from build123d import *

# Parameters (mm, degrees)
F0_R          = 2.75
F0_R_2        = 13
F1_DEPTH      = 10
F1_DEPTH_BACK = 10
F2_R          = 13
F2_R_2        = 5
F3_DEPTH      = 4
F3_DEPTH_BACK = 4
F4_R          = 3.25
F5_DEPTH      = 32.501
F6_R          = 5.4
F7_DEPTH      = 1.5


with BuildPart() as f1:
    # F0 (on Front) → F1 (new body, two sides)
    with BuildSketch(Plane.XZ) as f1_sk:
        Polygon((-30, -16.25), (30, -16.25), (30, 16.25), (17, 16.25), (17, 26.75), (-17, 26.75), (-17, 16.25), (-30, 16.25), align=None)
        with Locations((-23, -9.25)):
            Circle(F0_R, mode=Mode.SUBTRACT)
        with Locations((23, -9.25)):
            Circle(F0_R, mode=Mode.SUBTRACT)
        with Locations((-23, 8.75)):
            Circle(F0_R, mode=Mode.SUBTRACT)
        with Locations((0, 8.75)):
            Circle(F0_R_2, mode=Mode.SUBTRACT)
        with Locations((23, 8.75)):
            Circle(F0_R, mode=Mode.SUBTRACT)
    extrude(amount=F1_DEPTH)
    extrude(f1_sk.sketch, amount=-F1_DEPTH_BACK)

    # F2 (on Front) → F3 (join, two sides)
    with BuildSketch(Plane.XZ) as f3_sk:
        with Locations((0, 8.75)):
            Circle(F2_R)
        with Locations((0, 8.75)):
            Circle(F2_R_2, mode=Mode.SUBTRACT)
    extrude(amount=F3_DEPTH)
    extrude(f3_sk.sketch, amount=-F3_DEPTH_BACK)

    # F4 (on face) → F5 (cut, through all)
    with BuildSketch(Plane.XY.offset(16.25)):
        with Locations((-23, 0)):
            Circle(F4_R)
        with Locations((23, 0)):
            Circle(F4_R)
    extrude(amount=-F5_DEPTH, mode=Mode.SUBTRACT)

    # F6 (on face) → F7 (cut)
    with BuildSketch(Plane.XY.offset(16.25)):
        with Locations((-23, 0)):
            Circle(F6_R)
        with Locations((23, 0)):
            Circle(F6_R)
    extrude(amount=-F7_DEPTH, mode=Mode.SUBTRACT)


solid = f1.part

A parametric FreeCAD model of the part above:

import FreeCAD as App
import Part
import Sketcher
from FreeCAD import Vector
Q = App.Units.Quantity

doc = App.newDocument("Part")
body = doc.addObject("PartDesign::Body", "Body")

sketch1 = doc.addObject("Sketcher::SketchObject", "Sketch")
body.addObject(sketch1)
sketch1.AttachmentSupport = (doc.XZ_Plane, [""])
sketch1.MapMode = "FlatFace"
sketch1.addGeometry(Part.LineSegment(Vector(-30, -16.2, 0), Vector(30, -16.2, 0)), False)
sketch1.addGeometry(Part.LineSegment(Vector(30, -16.2, 0), Vector(30, 16.2, 0)), False)
sketch1.addGeometry(Part.LineSegment(Vector(30, 16.2, 0), Vector(17, 16.2, 0)), False)
sketch1.addGeometry(Part.LineSegment(Vector(17, 16.2, 0), Vector(17, 26.8, 0)), False)
sketch1.addGeometry(Part.LineSegment(Vector(17, 26.8, 0), Vector(-17, 26.8, 0)), False)
sketch1.addGeometry(Part.LineSegment(Vector(-17, 26.8, 0), Vector(-17, 16.2, 0)), False)
sketch1.addGeometry(Part.LineSegment(Vector(-17, 16.2, 0), Vector(-30, 16.2, 0)), False)
sketch1.addGeometry(Part.LineSegment(Vector(-30, 16.2, 0), Vector(-30, -16.2, 0)), False)
sketch1.addGeometry(Part.Circle(Vector(-23, -9.2, 0), Vector(0, 0, 1), 2.8), False)
sketch1.addGeometry(Part.Circle(Vector(23, -9.2, 0), Vector(0, 0, 1), 2.8), False)
sketch1.addGeometry(Part.Circle(Vector(-23, 8.8, 0), Vector(0, 0, 1), 2.8), False)
sketch1.addGeometry(Part.Circle(Vector(0, 8.8, 0), Vector(0, 0, 1), 13), False)
sketch1.addGeometry(Part.Circle(Vector(23, 8.8, 0), Vector(0, 0, 1), 2.8), False)
sketch1.addConstraint(Sketcher.Constraint("Coincident", 0, 2, 1, 1))
sketch1.addConstraint(Sketcher.Constraint("Coincident", 1, 2, 2, 1))
sketch1.addConstraint(Sketcher.Constraint("Coincident", 2, 2, 3, 1))
sketch1.addConstraint(Sketcher.Constraint("Coincident", 3, 2, 4, 1))
sketch1.addConstraint(Sketcher.Constraint("Coincident", 4, 2, 5, 1))
sketch1.addConstraint(Sketcher.Constraint("Coincident", 5, 2, 6, 1))
sketch1.addConstraint(Sketcher.Constraint("Coincident", 6, 2, 7, 1))
sketch1.addConstraint(Sketcher.Constraint("Coincident", 7, 2, 0, 1))
sketch1.addConstraint(Sketcher.Constraint("Horizontal", 0))
sketch1.addConstraint(Sketcher.Constraint("Vertical", 1))
sketch1.addConstraint(Sketcher.Constraint("Horizontal", 2))
sketch1.addConstraint(Sketcher.Constraint("Vertical", 3))
sketch1.addConstraint(Sketcher.Constraint("Horizontal", 4))
sketch1.addConstraint(Sketcher.Constraint("Vertical", 5))
sketch1.addConstraint(Sketcher.Constraint("Horizontal", 6))
sketch1.addConstraint(Sketcher.Constraint("Vertical", 7))
sketch1.addConstraint(Sketcher.Constraint("Equal", 8, 9))
sketch1.addConstraint(Sketcher.Constraint("Equal", 9, 10))
sketch1.addConstraint(Sketcher.Constraint("Equal", 10, 12))
sketch1.addConstraint(Sketcher.Constraint("Symmetric", 0, 2, 6, 2, -1, 1))
sketch1.addConstraint(Sketcher.Constraint("Symmetric", 8, 3, 9, 3, -2))
sketch1.addConstraint(Sketcher.Constraint("Symmetric", 10, 3, 12, 3, -2))
sketch1.addConstraint(Sketcher.Constraint("Symmetric", 2, 2, 5, 2, -2))
sketch1.addConstraint(Sketcher.Constraint("PointOnObject", 11, 3, -2))
sketch1.addConstraint(Sketcher.Constraint("Horizontal", 10, 3, 11, 3))
sketch1.addConstraint(Sketcher.Constraint("Vertical", 8, 3, 10, 3))
sketch1.addConstraint(Sketcher.Constraint("Diameter", 11, Q("26 mm")))
sketch1.addConstraint(Sketcher.Constraint("Diameter", 8, Q("5.5 mm")))
sketch1.addConstraint(Sketcher.Constraint("DistanceX", 0, 1, 0, 2, Q("60 mm")))
sketch1.addConstraint(Sketcher.Constraint("DistanceX", 2, 2, 2, 1, Q("13 mm")))
sketch1.addConstraint(Sketcher.Constraint("DistanceY", 1, 1, 1, 2, Q("32.5 mm")))
sketch1.addConstraint(Sketcher.Constraint("DistanceY", 3, 1, 3, 2, Q("10.5 mm")))
sketch1.addConstraint(Sketcher.Constraint("DistanceX", 8, 3, -1, 1, Q("23 mm")))
sketch1.addConstraint(Sketcher.Constraint("DistanceY", 8, 3, 10, 3, Q("18 mm")))
sketch1.addConstraint(Sketcher.Constraint("DistanceY", 0, 2, 9, 3, Q("7 mm")))
pad1 = doc.addObject("PartDesign::Pad", "Pad")
body.addObject(pad1)
pad1.Profile = sketch1
pad1.Type = "TwoLengths"
pad1.Length = 10
pad1.Length2 = 10

sketch2 = doc.addObject("Sketcher::SketchObject", "Sketch001")
body.addObject(sketch2)
sketch2.AttachmentSupport = (doc.XZ_Plane, [""])
sketch2.MapMode = "FlatFace"
sketch2.addGeometry(Part.Circle(Vector(0, 9, 0), Vector(0, 0, 1), 13), False)
sketch2.addGeometry(Part.Circle(Vector(0, 9, 0), Vector(0, 0, 1), 5), False)
sketch2.addConstraint(Sketcher.Constraint("Coincident", 1, 3, 0, 3))
sketch2.addConstraint(Sketcher.Constraint("PointOnObject", 0, 3, -2))
sketch2.addConstraint(Sketcher.Constraint("Diameter", 0, Q("26 mm")))
sketch2.addConstraint(Sketcher.Constraint("Diameter", 1, Q("10 mm")))
sketch2.addConstraint(Sketcher.Constraint("DistanceY", -1, 1, 0, 3, Q("8.75 mm")))
pad2 = doc.addObject("PartDesign::Pad", "Pad001")
body.addObject(pad2)
pad2.Profile = sketch2
pad2.Type = "TwoLengths"
pad2.Length = 4
pad2.Length2 = 4

sketch3 = doc.addObject("Sketcher::SketchObject", "Sketch002")
body.addObject(sketch3)
sketch3.AttachmentSupport = (doc.XY_Plane, [""])
sketch3.MapMode = "FlatFace"
sketch3.AttachmentOffset = App.Placement(Vector(0, 0, 16.25), App.Rotation())
sketch3.addGeometry(Part.Circle(Vector(-23, 0, 0), Vector(0, 0, 1), 3.2), False)
sketch3.addGeometry(Part.Circle(Vector(23, 0, 0), Vector(0, 0, 1), 3.2), False)
sketch3.addConstraint(Sketcher.Constraint("Equal", 0, 1))
sketch3.addConstraint(Sketcher.Constraint("Symmetric", 0, 3, 1, 3, -1, 1))
sketch3.addConstraint(Sketcher.Constraint("PointOnObject", 0, 3, -1))
sketch3.addConstraint(Sketcher.Constraint("Diameter", 0, Q("6.5 mm")))
sketch3.addConstraint(Sketcher.Constraint("DistanceX", 0, 3, -1, 1, Q("23 mm")))
pocket1 = doc.addObject("PartDesign::Pocket", "Pocket")
body.addObject(pocket1)
pocket1.Profile = sketch3
pocket1.Type = "ThroughAll"

sketch4 = doc.addObject("Sketcher::SketchObject", "Sketch003")
body.addObject(sketch4)
sketch4.AttachmentSupport = (doc.XY_Plane, [""])
sketch4.MapMode = "FlatFace"
sketch4.AttachmentOffset = App.Placement(Vector(0, 0, 16.25), App.Rotation())
sketch4.addGeometry(Part.Circle(Vector(-23, 0, 0), Vector(0, 0, 1), 5), False)
sketch4.addGeometry(Part.Circle(Vector(23, 0, 0), Vector(0, 0, 1), 5), False)
sketch4.addConstraint(Sketcher.Constraint("Equal", 0, 1))
sketch4.addConstraint(Sketcher.Constraint("Symmetric", 0, 3, 1, 3, -1, 1))
sketch4.addConstraint(Sketcher.Constraint("PointOnObject", 0, 3, -1))
sketch4.addConstraint(Sketcher.Constraint("Diameter", 0, Q("10.8 mm")))
sketch4.addConstraint(Sketcher.Constraint("DistanceX", 0, 3, -1, 1, Q("23 mm")))
pocket2 = doc.addObject("PartDesign::Pocket", "Pocket001")
body.addObject(pocket2)
pocket2.Profile = sketch4
pocket2.Length = 1.5

doc.recompute()
